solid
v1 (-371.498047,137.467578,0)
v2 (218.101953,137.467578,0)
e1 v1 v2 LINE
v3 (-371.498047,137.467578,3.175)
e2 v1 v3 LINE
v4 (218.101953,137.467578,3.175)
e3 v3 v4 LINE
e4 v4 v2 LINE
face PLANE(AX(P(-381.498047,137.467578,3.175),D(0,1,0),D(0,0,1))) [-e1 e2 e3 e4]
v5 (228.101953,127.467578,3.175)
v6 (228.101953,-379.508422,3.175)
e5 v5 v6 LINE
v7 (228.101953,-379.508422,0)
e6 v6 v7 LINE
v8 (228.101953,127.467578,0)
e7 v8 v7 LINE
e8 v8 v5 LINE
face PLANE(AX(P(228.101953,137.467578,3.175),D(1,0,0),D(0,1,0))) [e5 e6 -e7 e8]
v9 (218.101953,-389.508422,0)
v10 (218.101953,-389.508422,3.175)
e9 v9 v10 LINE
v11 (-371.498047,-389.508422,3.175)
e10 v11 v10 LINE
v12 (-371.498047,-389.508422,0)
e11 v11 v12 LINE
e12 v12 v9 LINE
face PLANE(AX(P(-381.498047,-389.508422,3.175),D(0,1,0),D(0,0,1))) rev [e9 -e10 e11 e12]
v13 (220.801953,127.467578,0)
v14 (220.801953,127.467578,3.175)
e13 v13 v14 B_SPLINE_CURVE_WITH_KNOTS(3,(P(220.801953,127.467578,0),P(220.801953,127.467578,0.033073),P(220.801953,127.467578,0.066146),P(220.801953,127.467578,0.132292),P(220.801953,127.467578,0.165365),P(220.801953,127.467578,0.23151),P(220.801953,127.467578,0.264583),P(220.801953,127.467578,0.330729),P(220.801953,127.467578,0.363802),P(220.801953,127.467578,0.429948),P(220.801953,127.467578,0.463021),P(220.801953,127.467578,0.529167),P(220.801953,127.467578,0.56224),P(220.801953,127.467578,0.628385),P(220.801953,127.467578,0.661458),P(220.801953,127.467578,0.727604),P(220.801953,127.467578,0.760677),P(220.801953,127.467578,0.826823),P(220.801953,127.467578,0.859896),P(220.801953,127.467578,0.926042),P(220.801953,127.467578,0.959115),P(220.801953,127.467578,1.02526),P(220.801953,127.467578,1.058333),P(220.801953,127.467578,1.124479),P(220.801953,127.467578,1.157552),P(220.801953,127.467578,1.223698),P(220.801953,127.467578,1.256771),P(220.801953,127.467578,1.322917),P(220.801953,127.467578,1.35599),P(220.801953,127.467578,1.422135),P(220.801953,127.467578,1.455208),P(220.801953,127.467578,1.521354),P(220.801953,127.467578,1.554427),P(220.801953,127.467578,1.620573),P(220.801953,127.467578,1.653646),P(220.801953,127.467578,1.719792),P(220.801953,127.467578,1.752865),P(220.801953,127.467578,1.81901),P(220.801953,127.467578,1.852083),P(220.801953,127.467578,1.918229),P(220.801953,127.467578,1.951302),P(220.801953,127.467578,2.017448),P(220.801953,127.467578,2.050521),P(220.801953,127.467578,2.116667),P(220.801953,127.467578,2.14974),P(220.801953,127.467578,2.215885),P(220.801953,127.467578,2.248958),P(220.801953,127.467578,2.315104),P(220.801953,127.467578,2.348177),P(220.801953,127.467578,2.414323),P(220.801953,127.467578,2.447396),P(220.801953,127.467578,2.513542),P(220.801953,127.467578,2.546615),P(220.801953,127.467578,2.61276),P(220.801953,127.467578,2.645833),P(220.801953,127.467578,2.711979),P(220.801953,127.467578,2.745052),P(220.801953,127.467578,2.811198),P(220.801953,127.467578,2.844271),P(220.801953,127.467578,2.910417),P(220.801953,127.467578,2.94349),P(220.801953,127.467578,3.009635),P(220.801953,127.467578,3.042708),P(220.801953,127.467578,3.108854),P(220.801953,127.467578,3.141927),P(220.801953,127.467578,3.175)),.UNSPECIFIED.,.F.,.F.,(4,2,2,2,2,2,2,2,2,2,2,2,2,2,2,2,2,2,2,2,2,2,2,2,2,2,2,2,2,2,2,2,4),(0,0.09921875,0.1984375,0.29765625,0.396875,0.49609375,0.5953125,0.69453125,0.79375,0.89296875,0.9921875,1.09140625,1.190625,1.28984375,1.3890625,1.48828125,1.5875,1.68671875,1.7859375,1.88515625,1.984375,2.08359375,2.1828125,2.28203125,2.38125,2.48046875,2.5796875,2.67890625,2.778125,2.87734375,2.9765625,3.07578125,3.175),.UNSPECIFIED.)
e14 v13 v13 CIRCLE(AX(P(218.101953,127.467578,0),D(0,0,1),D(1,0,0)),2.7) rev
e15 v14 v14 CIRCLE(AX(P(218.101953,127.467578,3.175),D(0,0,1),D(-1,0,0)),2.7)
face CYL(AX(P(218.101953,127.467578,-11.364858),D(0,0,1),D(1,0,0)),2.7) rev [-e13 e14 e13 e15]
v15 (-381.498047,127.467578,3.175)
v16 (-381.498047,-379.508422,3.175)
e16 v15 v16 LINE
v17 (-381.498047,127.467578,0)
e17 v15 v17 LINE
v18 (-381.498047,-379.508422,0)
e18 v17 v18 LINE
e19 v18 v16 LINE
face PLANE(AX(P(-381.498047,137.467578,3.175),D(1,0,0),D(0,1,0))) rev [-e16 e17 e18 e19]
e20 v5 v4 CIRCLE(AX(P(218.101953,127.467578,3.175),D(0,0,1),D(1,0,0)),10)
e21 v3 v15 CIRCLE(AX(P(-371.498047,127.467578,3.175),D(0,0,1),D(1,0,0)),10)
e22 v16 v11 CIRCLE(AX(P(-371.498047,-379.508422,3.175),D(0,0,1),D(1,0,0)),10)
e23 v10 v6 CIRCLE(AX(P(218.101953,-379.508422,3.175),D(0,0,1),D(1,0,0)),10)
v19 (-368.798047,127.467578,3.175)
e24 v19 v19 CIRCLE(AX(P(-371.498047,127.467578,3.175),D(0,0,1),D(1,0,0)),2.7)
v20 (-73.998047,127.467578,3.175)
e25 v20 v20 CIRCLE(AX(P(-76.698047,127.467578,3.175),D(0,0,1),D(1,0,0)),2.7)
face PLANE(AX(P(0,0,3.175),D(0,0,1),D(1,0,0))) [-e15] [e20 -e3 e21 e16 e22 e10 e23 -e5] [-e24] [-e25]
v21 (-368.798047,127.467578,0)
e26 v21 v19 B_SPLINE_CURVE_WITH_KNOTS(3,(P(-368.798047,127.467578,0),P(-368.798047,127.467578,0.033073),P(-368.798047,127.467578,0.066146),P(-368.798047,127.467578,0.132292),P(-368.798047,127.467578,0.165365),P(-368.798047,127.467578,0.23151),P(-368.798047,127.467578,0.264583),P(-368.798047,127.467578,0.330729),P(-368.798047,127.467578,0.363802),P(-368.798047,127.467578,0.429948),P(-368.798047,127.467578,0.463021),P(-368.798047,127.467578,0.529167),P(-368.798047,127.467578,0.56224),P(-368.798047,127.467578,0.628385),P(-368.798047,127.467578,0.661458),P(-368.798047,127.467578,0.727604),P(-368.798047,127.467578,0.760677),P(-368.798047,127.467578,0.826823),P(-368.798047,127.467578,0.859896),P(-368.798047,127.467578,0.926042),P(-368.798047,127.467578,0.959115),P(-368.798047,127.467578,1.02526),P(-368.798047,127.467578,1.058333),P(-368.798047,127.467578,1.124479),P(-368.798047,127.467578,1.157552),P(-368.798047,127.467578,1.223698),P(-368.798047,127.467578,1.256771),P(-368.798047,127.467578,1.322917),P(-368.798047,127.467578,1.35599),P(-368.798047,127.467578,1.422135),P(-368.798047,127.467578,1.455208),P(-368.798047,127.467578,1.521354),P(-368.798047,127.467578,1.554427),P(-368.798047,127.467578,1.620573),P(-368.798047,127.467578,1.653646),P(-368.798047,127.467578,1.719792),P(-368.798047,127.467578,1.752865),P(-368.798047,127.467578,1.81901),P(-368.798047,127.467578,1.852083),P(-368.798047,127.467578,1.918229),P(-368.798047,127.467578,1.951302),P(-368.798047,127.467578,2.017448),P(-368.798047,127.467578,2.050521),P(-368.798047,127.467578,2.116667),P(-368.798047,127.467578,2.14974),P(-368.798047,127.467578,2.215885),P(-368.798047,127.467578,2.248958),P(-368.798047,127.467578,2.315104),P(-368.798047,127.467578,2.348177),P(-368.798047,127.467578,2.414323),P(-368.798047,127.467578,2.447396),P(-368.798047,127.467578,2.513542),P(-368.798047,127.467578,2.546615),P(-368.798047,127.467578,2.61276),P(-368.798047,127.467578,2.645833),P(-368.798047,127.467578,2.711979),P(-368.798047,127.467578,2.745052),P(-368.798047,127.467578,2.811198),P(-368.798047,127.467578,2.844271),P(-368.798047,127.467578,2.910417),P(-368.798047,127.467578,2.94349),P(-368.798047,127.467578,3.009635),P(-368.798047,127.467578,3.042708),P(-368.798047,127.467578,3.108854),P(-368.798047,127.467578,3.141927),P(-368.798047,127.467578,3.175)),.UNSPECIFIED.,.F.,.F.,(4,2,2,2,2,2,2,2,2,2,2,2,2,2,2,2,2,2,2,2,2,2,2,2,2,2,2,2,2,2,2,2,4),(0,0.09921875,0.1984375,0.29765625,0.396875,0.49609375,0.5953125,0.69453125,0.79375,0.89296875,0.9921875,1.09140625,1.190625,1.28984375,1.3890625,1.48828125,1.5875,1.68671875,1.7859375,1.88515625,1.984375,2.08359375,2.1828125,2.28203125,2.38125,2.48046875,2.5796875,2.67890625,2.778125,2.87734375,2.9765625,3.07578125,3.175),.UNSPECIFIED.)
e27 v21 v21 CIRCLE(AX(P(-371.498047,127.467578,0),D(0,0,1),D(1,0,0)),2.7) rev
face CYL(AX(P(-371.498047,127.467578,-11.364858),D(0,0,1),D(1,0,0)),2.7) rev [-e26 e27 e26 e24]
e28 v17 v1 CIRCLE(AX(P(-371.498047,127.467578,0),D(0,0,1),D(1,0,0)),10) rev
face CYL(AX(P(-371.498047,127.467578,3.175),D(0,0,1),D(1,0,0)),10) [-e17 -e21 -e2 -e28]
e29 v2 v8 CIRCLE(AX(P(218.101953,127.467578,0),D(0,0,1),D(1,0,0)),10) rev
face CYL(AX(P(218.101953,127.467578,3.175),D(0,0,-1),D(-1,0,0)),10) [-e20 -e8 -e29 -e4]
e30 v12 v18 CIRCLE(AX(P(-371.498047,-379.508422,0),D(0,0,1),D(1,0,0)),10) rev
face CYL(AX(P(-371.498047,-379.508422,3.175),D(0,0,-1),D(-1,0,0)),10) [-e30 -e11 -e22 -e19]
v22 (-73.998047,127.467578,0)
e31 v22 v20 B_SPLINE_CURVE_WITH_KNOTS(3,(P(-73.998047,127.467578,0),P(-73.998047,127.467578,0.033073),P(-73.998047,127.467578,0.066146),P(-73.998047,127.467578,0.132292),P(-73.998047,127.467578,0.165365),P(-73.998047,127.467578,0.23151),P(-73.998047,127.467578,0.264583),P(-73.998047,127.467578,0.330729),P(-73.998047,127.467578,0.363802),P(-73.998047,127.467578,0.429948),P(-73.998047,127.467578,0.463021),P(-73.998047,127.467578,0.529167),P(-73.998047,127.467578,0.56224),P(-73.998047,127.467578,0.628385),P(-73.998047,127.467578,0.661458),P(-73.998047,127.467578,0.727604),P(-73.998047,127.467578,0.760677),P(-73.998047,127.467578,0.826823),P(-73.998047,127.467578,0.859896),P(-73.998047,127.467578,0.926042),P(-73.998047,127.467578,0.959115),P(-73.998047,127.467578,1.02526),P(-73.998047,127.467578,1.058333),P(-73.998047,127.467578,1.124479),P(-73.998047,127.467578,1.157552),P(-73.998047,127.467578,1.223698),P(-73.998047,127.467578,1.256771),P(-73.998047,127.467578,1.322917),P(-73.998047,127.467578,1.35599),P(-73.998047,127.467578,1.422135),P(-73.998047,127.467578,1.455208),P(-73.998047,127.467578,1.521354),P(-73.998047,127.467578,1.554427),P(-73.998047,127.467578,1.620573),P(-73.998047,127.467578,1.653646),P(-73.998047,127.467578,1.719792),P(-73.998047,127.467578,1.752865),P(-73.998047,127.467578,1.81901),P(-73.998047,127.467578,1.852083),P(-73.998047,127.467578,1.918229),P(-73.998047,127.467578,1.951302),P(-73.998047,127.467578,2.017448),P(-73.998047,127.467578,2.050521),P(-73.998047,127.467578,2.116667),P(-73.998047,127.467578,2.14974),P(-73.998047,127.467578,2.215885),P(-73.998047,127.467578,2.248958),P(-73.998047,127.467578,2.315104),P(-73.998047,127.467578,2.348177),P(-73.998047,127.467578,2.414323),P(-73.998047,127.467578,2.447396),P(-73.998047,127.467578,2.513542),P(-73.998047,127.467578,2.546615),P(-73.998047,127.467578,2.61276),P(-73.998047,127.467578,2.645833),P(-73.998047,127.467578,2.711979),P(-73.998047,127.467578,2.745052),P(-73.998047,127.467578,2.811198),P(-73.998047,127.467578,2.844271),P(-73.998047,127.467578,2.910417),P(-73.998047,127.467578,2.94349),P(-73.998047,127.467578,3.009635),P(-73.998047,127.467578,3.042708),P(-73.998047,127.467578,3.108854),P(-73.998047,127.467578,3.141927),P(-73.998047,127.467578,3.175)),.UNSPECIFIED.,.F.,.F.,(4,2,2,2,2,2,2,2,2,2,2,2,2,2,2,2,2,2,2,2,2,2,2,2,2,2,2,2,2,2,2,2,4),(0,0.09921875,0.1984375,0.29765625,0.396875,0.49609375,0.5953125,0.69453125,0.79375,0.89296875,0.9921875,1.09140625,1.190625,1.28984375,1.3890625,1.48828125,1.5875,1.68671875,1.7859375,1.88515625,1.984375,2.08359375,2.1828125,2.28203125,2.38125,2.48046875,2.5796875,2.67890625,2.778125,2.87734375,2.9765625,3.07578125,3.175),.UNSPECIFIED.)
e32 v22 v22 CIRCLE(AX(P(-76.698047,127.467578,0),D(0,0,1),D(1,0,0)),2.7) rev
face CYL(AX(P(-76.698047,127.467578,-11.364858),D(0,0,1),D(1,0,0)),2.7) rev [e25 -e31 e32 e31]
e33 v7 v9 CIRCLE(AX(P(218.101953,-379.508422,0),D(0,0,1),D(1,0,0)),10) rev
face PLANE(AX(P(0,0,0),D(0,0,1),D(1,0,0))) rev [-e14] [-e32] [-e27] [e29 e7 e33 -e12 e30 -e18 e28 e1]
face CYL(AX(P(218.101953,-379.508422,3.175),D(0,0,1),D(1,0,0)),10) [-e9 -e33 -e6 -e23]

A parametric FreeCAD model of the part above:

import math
import FreeCAD as App
import Part
import Sketcher

V = App.Vector


def edges_at(feature, points):
    """Names of the edges that pass closest to the given points."""
    edges = feature.Shape.Edges
    near = lambda p: min(range(len(edges)), key=lambda i: edges[i].distToShape(Part.Vertex(*p))[0])
    return sorted({f"Edge{near(p) + 1}" for p in points})


def add_polygon(sketch, points):
    """Adds a closed chain of lines whose ends are joined by coincident constraints."""
    first, n = sketch.GeometryCount, len(points)
    for a, b in zip(points, points[1:] + points[:1]):
        sketch.addGeometry(Part.LineSegment(App.Vector(*a, 0), App.Vector(*b, 0)), False)
    for i in range(n):
        sketch.addConstraint(Sketcher.Constraint("Coincident", first + i, 2, first + (i + 1) % n, 1))

doc = App.newDocument("Part")
body = doc.addObject("PartDesign::Body", "Body")

# Sketch on XY plane
sketch1 = body.newObject("Sketcher::SketchObject", "Sketch")
sketch1.AttachmentSupport = (doc.getObject("XY_Plane"), [""])
sketch1.MapMode = "FlatFace"
add_polygon(sketch1, [(-381, 137), (-381, -390), (228, -390), (228, 137)])  # lines 0-3
sketch1.addConstraint([
    Sketcher.Constraint("Vertical", 0),
    Sketcher.Constraint("Horizontal", 1),
    Sketcher.Constraint("Vertical", 2),
    Sketcher.Constraint("Horizontal", 3),
    Sketcher.Constraint("DistanceX", 1, 1, 1, 2, 609.6),
    Sketcher.Constraint("DistanceY", 0, 2, 0, 1, 526.976),
    Sketcher.Constraint("DistanceY", 0, 2, -1, 1, 389.508422),
    Sketcher.Constraint("DistanceX", 0, 2, -1, 1, 381.498047),
])
pad1 = body.newObject("PartDesign::Pad", "Pad")
pad1.Profile = sketch1
pad1.Length = 3.175
doc.recompute()

fillet = body.newObject("PartDesign::Fillet", "Fillet")
fillet.Base = (pad1, edges_at(pad1, [
    (-381.498, 137.468, 1.587),
    (228.102, 137.468, 1.587),
    (228.102, -389.508, 1.587),
    (-381.498, -389.508, 1.587),
]))
fillet.Radius = 10

# Sketch on XY plane
sketch2 = body.newObject("Sketcher::SketchObject", "Sketch001")
sketch2.AttachmentSupport = (doc.getObject("XY_Plane"), [""])
sketch2.MapMode = "FlatFace"
sketch2.AttachmentOffset = App.Placement(V(0, 0, 3.175), App.Rotation())
sketch2.addGeometry([
    Part.Circle(V(-371.5, 127.5, 0), V(0, 0, 1), 2.7),  # 0
    Part.Circle(V(218.1, 127.5, 0), V(0, 0, 1), 2.7),  # 1
    Part.Circle(V(-76.7, 127.5, 0), V(0, 0, 1), 2.7),  # 2
    Part.LineSegment(V(-1241.3, -361.8, 0), V(-1247.3, -361.8, 0)),  # 3
    Part.ArcOfCircle(Part.Circle(V(-1247.3, -363.8, 0), V(0, 0, 1), 2), math.radians(90), math.radians(180)),  # 4
    Part.LineSegment(V(-1249.3, -363.8, 0), V(-1249.3, -365.2, 0)),  # 5
    Part.ArcOfCircle(Part.Circle(V(-1247.3, -365.2, 0), V(0, 0, 1), 2), math.radians(180), math.radians(270)),  # 6
    Part.LineSegment(V(-1247.3, -367.2, 0), V(-1241.3, -367.2, 0)),  # 7
    Part.ArcOfCircle(Part.Circle(V(-1241.3, -365.2, 0), V(0, 0, 1), 2), math.radians(-90), math.radians(0)),  # 8
    Part.LineSegment(V(-1239.3, -365.2, 0), V(-1239.3, -363.8, 0)),  # 9
    Part.ArcOfCircle(Part.Circle(V(-1241.3, -363.8, 0), V(0, 0, 1), 2), math.radians(0), math.radians(90)),  # 10
    Part.LineSegment(V(-657.7, -367.2, 0), V(-651.7, -367.2, 0)),  # 11
    Part.ArcOfCircle(Part.Circle(V(-651.7, -365.2, 0), V(0, 0, 1), 2), math.radians(-90), math.radians(0)),  # 12
    Part.LineSegment(V(-649.7, -365.2, 0), V(-649.7, -363.8, 0)),  # 13
    Part.ArcOfCircle(Part.Circle(V(-651.7, -363.8, 0), V(0, 0, 1), 2), math.radians(0), math.radians(90)),  # 14
    Part.LineSegment(V(-651.7, -361.8, 0), V(-657.7, -361.8, 0)),  # 15
    Part.ArcOfCircle(Part.Circle(V(-657.7, -363.8, 0), V(0, 0, 1), 2), math.radians(90), math.radians(180)),  # 16
    Part.LineSegment(V(-659.7, -363.8, 0), V(-659.7, -365.2, 0)),  # 17
    Part.ArcOfCircle(Part.Circle(V(-657.7, -365.2, 0), V(0, 0, 1), 2), math.radians(180), math.radians(270)),  # 18
], False)
sketch2.addConstraint([
    Sketcher.Constraint("Tangent", 3, 2, 4, 1),
    Sketcher.Constraint("Tangent", 4, 2, 5, 1),
    Sketcher.Constraint("Tangent", 5, 2, 6, 1),
    Sketcher.Constraint("Tangent", 6, 2, 7, 1),
    Sketcher.Constraint("Tangent", 7, 2, 8, 1),
    Sketcher.Constraint("Tangent", 8, 2, 9, 1),
    Sketcher.Constraint("Tangent", 9, 2, 10, 1),
    Sketcher.Constraint("Tangent", 10, 2, 3, 1),
    Sketcher.Constraint("Tangent", 11, 2, 12, 1),
    Sketcher.Constraint("Tangent", 12, 2, 13, 1),
    Sketcher.Constraint("Tangent", 13, 2, 14, 1),
    Sketcher.Constraint("Tangent", 14, 2, 15, 1),
    Sketcher.Constraint("Tangent", 15, 2, 16, 1),
    Sketcher.Constraint("Tangent", 16, 2, 17, 1),
    Sketcher.Constraint("Tangent", 17, 2, 18, 1),
    Sketcher.Constraint("Tangent", 18, 2, 11, 1),
    Sketcher.Constraint("Horizontal", 3),
    Sketcher.Constraint("Vertical", 5),
    Sketcher.Constraint("Horizontal", 7),
    Sketcher.Constraint("Vertical", 9),
    Sketcher.Constraint("Horizontal", 11),
    Sketcher.Constraint("Vertical", 13),
    Sketcher.Constraint("Horizontal", 15),
    Sketcher.Constraint("Vertical", 17),
    Sketcher.Constraint("Equal", 0, 1),
    Sketcher.Constraint("Equal", 1, 2),
    Sketcher.Constraint("Equal", 4, 6),
    Sketcher.Constraint("Equal", 6, 8),
    Sketcher.Constraint("Equal", 8, 10),
    Sketcher.Constraint("Equal", 10, 12),
    Sketcher.Constraint("Equal", 12, 14),
    Sketcher.Constraint("Equal", 14, 16),
    Sketcher.Constraint("Equal", 16, 18),
    Sketcher.Constraint("Horizontal", 0, 3, 1, 3),
    Sketcher.Constraint("Horizontal", 1, 3, 2, 3),
    Sketcher.Constraint("Horizontal", 8, 3, 12, 3),
    Sketcher.Constraint("Horizontal", 10, 3, 14, 3),
    Sketcher.Constraint("Equal", 7, 11),
    Sketcher.Constraint("Radius", 4, 2.0),
    Sketcher.Constraint("Diameter", 0, 5.4),
    Sketcher.Constraint("DistanceX", 3, 2, 3, 1, 6.0),
    Sketcher.Constraint("DistanceY", 5, 2, 5, 1, 1.4),
    Sketcher.Constraint("DistanceX", 0, 3, 1, 3, 589.6),
    Sketcher.Constraint("DistanceX", 0, 3, 2, 3, 294.8),
    Sketcher.Constraint("DistanceX", 8, 3, 12, 3, 589.6),
    Sketcher.Constraint("DistanceY", 4, 3, 0, 3, 491.276),
    Sketcher.Constraint("DistanceY", -1, 1, 0, 3, 127.467578),
    Sketcher.Constraint("DistanceX", 4, 3, -1, 1, 1247.340491),
    Sketcher.Constraint("DistanceX", 0, 3, -1, 1, 371.498047),
])
pocket1 = body.newObject("PartDesign::Pocket", "Pocket")
pocket1.Profile = sketch2
pocket1.Length = 3.175

doc.recompute()
